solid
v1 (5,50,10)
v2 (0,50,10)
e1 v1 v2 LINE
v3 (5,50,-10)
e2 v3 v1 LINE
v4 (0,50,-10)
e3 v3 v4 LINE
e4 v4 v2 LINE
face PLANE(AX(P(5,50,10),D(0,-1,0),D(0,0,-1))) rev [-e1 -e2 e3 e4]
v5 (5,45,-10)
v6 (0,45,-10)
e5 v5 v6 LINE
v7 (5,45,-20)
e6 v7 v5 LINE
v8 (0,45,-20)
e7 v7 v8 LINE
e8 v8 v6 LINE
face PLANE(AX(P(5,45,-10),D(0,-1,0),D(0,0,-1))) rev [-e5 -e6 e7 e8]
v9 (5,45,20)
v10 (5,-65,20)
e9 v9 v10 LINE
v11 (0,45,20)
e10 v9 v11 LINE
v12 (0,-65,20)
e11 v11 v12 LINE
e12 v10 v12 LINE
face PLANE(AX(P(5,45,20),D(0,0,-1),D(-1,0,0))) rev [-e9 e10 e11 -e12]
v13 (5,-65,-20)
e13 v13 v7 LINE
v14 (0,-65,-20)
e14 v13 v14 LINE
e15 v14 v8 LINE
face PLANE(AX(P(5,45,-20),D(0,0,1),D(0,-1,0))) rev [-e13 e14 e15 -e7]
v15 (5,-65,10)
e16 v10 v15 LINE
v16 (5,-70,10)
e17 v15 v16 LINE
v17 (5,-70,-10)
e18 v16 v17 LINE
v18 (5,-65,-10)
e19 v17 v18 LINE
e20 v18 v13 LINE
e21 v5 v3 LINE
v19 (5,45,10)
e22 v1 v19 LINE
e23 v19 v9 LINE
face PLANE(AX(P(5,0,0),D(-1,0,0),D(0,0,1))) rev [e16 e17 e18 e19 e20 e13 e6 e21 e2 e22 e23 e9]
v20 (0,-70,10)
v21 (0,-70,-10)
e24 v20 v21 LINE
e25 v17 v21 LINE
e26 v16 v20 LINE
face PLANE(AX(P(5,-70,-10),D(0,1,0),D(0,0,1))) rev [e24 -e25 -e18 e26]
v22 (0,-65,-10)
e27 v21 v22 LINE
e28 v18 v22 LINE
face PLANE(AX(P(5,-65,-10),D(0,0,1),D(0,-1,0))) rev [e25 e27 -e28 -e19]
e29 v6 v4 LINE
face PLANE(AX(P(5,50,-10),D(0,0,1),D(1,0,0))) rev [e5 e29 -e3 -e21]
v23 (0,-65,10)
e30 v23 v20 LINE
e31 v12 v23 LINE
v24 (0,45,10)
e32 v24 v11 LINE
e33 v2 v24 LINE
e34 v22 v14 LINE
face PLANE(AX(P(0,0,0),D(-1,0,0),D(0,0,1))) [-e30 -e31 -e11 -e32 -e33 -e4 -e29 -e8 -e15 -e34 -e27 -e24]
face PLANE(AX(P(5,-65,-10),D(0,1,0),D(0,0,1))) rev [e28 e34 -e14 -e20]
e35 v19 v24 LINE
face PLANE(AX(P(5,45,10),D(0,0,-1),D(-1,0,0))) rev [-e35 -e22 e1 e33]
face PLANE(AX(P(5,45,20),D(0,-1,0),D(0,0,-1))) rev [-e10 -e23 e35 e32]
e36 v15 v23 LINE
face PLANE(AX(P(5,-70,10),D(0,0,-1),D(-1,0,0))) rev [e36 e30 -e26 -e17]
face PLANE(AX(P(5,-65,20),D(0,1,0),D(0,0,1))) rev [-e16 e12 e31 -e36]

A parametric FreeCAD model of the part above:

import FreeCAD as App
import Part
import Sketcher
from FreeCAD import Vector
Q = App.Units.Quantity

doc = App.newDocument("Part")
params = doc.addObject("Spreadsheet::Sheet", "Params")
for row, (alias, value) in enumerate([
    ("sketch1_width", "110 mm"),
    ("sketch1_width2", "5 mm"),
    ("sketch1_height", "10 mm"),
    ("sketch1_height2", "20 mm"),
    ("pad1_length", "5 mm"),
], start=1):
    params.set(f"A{row}", alias)
    params.set(f"B{row}", "=" + value)
    params.setAlias(f"B{row}", alias)

body = doc.addObject("PartDesign::Body", "Body")

# Sketch on YZ plane
sketch1 = body.newObject("Sketcher::SketchObject", "Sketch")
sketch1.AttachmentSupport = (doc.getObject("YZ_Plane"), [""])
sketch1.MapMode = "FlatFace"
sketch1.addGeometry(Part.LineSegment(Vector(45, 10, 0), Vector(45, 20, 0)), False)
sketch1.addGeometry(Part.LineSegment(Vector(45, 20, 0), Vector(-65, 20, 0)), False)
sketch1.addGeometry(Part.LineSegment(Vector(-65, 20, 0), Vector(-65, 10, 0)), False)
sketch1.addGeometry(Part.LineSegment(Vector(-65, 10, 0), Vector(-70, 10, 0)), False)
sketch1.addGeometry(Part.LineSegment(Vector(-70, 10, 0), Vector(-70, -10, 0)), False)
sketch1.addGeometry(Part.LineSegment(Vector(-70, -10, 0), Vector(-65, -10, 0)), False)
sketch1.addGeometry(Part.LineSegment(Vector(-65, -10, 0), Vector(-65, -20, 0)), False)
sketch1.addGeometry(Part.LineSegment(Vector(-65, -20, 0), Vector(45, -20, 0)), False)
sketch1.addGeometry(Part.LineSegment(Vector(45, -20, 0), Vector(45, -10, 0)), False)
sketch1.addGeometry(Part.LineSegment(Vector(45, -10, 0), Vector(50, -10, 0)), False)
sketch1.addGeometry(Part.LineSegment(Vector(50, -10, 0), Vector(50, 10, 0)), False)
sketch1.addGeometry(Part.LineSegment(Vector(50, 10, 0), Vector(45, 10, 0)), False)
sketch1.addConstraint(Sketcher.Constraint("Coincident", 0, 2, 1, 1))
sketch1.addConstraint(Sketcher.Constraint("Coincident", 1, 2, 2, 1))
sketch1.addConstraint(Sketcher.Constraint("Coincident", 2, 2, 3, 1))
sketch1.addConstraint(Sketcher.Constraint("Coincident", 3, 2, 4, 1))
sketch1.addConstraint(Sketcher.Constraint("Coincident", 4, 2, 5, 1))
sketch1.addConstraint(Sketcher.Constraint("Coincident", 5, 2, 6, 1))
sketch1.addConstraint(Sketcher.Constraint("Coincident", 6, 2, 7, 1))
sketch1.addConstraint(Sketcher.Constraint("Coincident", 7, 2, 8, 1))
sketch1.addConstraint(Sketcher.Constraint("Coincident", 8, 2, 9, 1))
sketch1.addConstraint(Sketcher.Constraint("Coincident", 9, 2, 10, 1))
sketch1.addConstraint(Sketcher.Constraint("Coincident", 10, 2, 11, 1))
sketch1.addConstraint(Sketcher.Constraint("Coincident", 11, 2, 0, 1))
sketch1.addConstraint(Sketcher.Constraint("Vertical", 0))
sketch1.addConstraint(Sketcher.Constraint("Horizontal", 1))
sketch1.addConstraint(Sketcher.Constraint("Vertical", 2))
sketch1.addConstraint(Sketcher.Constraint("Horizontal", 3))
sketch1.addConstraint(Sketcher.Constraint("Vertical", 4))
sketch1.addConstraint(Sketcher.Constraint("Horizontal", 5))
sketch1.addConstraint(Sketcher.Constraint("Vertical", 6))
sketch1.addConstraint(Sketcher.Constraint("Horizontal", 7))
sketch1.addConstraint(Sketcher.Constraint("Vertical", 8))
sketch1.addConstraint(Sketcher.Constraint("Horizontal", 9))
sketch1.addConstraint(Sketcher.Constraint("Vertical", 10))
sketch1.addConstraint(Sketcher.Constraint("Horizontal", 11))
sketch1.addConstraint(Sketcher.Constraint("Symmetric", 2, 2, 5, 2, -1))
sketch1.addConstraint(Sketcher.Constraint("Symmetric", 0, 2, 7, 2, -1))
sketch1.addConstraint(Sketcher.Constraint("Horizontal", 5, 2, 8, 2))
sketch1.addConstraint(Sketcher.Constraint("Horizontal", 3, 2, 10, 2))
sketch1.addConstraint(Sketcher.Constraint("Equal", 5, 9))
sketch1.addConstraint(Sketcher.Constraint("DistanceX", 1, 2, 1, 1, Q("110 mm")))
sketch1.addConstraint(Sketcher.Constraint("DistanceX", 3, 2, 3, 1, Q("5 mm")))
sketch1.addConstraint(Sketcher.Constraint("DistanceY", 0, 1, 0, 2, Q("10 mm")))
sketch1.addConstraint(Sketcher.Constraint("DistanceY", 4, 2, 4, 1, Q("20 mm")))
sketch1.addConstraint(Sketcher.Constraint("DistanceX", -1, 1, 0, 2, Q("45 mm")))
sketch1.setExpression("Constraints[29]", "Params.sketch1_width")
sketch1.setExpression("Constraints[30]", "Params.sketch1_width2")
sketch1.setExpression("Constraints[31]", "Params.sketch1_height")
sketch1.setExpression("Constraints[32]", "Params.sketch1_height2")
pad1 = body.newObject("PartDesign::Pad", "Pad")
pad1.Profile = sketch1
pad1.setExpression("Length", "Params.pad1_length")

doc.recompute()
